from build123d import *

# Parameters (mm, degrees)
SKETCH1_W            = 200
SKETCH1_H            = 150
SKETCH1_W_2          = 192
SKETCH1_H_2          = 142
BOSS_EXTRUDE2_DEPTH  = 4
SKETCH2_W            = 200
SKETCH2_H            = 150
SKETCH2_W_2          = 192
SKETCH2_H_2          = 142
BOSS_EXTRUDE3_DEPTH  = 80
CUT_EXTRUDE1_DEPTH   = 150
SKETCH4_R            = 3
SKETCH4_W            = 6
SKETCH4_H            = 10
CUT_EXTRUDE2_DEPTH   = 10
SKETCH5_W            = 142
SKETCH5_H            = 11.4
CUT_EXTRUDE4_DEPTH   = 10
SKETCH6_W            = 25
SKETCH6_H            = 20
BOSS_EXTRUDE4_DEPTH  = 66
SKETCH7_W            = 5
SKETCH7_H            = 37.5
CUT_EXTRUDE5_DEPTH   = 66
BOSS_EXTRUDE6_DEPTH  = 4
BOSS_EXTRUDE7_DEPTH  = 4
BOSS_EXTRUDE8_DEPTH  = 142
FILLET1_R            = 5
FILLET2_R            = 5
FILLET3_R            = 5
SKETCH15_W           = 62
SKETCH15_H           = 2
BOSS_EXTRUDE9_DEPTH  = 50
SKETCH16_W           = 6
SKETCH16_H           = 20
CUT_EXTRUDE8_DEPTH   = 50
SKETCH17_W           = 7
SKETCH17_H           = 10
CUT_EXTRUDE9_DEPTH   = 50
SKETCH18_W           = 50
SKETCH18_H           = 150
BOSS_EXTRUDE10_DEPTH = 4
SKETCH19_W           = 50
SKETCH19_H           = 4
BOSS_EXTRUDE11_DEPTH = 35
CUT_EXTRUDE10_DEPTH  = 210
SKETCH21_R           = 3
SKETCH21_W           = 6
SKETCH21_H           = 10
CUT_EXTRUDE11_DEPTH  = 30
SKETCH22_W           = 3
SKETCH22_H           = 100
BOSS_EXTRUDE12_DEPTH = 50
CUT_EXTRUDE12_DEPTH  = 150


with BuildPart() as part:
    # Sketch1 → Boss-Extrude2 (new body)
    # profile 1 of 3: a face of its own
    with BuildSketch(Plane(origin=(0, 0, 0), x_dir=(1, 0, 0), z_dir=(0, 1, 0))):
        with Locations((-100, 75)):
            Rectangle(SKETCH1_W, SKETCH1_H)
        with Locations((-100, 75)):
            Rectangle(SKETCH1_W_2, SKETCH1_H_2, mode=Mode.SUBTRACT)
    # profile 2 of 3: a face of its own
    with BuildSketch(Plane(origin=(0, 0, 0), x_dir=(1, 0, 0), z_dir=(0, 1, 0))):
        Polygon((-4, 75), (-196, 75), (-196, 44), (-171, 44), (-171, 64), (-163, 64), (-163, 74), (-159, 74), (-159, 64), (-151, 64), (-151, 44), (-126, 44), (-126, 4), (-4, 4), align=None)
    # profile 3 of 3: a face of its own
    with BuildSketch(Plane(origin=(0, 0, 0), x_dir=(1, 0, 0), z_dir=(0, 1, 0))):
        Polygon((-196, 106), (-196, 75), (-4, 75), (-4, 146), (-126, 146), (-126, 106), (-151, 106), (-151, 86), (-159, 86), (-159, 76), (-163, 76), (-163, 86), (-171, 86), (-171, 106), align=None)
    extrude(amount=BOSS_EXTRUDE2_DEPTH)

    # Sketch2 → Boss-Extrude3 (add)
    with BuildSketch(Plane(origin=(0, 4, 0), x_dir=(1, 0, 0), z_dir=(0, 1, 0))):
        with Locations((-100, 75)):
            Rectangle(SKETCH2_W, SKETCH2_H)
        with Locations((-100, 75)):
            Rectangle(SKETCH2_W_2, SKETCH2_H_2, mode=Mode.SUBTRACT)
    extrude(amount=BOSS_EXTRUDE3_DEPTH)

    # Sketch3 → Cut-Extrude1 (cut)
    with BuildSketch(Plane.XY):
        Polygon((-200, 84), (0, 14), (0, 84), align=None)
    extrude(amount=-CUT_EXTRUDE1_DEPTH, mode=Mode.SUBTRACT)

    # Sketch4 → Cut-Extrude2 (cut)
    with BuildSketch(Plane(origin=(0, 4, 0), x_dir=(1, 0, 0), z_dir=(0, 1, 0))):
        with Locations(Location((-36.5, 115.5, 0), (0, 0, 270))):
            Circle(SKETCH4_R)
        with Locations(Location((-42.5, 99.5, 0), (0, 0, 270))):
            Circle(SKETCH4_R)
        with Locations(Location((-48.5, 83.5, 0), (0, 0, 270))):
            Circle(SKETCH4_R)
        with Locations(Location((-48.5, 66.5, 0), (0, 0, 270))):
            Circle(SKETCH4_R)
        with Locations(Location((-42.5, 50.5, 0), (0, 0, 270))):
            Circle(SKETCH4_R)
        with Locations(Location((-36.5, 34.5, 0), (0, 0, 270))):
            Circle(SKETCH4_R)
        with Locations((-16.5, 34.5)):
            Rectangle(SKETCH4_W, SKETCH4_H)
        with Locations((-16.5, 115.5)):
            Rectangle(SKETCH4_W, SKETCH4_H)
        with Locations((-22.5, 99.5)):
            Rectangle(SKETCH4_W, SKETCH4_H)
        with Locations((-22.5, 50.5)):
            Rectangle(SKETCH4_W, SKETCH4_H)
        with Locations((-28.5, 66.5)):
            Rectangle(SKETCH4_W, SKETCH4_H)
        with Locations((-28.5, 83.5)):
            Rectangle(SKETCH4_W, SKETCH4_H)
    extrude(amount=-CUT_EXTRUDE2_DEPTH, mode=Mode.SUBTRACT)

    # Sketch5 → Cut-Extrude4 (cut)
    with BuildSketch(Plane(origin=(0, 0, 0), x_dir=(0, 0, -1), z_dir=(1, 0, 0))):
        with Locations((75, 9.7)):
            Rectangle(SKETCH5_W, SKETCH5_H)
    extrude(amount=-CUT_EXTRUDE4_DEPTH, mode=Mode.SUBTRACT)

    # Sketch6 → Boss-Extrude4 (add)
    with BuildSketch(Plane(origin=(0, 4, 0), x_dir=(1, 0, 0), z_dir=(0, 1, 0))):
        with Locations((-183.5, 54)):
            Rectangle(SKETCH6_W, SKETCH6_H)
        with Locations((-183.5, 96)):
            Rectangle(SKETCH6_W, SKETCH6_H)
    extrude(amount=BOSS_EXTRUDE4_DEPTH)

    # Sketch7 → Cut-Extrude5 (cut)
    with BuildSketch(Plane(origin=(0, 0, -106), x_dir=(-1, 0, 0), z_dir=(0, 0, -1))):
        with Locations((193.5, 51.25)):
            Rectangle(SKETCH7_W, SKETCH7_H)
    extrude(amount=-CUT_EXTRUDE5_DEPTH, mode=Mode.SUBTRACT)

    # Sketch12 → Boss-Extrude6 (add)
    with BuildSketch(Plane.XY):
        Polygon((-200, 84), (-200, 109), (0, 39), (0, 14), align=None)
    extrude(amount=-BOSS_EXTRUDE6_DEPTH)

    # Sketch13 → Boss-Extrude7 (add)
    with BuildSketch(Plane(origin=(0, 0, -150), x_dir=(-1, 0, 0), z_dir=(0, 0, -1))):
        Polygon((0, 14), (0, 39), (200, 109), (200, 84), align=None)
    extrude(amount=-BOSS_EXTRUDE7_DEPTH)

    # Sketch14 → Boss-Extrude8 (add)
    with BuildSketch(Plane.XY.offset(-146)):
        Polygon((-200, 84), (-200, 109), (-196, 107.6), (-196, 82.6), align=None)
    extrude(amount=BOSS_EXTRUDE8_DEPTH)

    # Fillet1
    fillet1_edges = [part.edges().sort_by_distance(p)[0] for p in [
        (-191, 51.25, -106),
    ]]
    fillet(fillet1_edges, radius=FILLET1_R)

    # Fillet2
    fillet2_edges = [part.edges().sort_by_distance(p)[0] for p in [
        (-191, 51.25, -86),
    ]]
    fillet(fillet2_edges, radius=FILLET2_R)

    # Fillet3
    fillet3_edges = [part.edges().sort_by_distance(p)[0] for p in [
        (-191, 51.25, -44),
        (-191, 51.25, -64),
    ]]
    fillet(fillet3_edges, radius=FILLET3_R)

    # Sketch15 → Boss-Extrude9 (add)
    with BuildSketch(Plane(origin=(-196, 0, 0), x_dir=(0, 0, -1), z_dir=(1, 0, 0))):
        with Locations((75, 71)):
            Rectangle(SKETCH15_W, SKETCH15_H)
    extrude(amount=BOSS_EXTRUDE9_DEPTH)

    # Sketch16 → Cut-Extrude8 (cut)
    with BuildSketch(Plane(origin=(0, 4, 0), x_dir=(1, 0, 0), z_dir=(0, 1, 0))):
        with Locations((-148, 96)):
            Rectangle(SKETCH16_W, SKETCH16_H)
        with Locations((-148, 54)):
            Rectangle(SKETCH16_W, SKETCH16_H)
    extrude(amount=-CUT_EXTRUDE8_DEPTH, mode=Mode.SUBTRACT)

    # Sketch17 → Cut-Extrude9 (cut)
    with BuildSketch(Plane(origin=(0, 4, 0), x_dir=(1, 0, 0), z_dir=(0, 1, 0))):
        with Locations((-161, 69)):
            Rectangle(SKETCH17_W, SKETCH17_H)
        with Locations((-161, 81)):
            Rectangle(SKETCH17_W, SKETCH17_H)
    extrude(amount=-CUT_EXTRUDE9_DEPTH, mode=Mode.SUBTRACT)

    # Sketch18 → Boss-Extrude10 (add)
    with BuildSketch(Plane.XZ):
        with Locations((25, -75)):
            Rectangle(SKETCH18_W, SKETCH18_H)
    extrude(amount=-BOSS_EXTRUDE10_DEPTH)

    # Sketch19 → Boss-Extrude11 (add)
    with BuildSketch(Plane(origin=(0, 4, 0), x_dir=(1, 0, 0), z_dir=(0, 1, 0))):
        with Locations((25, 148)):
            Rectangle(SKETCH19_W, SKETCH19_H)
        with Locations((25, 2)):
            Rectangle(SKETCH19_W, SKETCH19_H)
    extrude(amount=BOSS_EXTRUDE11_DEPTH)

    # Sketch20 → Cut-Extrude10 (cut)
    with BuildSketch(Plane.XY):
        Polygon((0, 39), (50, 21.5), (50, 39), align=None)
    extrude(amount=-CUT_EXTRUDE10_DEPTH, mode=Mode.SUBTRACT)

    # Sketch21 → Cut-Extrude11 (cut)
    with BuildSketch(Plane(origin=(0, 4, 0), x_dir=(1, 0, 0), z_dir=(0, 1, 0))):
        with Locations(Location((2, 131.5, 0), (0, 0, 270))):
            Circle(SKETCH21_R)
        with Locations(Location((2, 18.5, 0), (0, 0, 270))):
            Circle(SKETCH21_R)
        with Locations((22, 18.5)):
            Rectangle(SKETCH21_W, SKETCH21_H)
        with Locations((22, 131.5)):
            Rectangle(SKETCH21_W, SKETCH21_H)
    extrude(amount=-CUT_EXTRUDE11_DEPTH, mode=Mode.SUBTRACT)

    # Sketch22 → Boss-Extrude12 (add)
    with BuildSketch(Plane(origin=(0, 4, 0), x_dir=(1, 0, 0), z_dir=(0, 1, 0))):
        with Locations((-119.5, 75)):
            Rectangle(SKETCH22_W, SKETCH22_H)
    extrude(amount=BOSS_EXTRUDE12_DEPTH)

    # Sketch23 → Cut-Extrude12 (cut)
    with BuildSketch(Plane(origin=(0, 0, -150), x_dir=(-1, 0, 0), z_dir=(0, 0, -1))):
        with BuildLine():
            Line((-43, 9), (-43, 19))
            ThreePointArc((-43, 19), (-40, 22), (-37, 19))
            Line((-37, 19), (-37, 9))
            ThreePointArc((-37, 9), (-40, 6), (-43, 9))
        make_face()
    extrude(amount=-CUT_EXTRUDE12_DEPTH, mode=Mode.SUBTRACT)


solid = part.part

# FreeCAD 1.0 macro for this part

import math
import FreeCAD as App
import Part
import Sketcher

V = App.Vector


def edges_at(feature, points):
    """Names of the edges that pass closest to the given points."""
    edges = feature.Shape.Edges
    near = lambda p: min(range(len(edges)), key=lambda i: edges[i].distToShape(Part.Vertex(*p))[0])
    return sorted({f"Edge{near(p) + 1}" for p in points})

doc = App.newDocument("Part")
body = doc.addObject("PartDesign::Body", "Body")

sketch1 = doc.addObject("Sketcher::SketchObject", "Sketch")
body.addObject(sketch1)
sketch1.AttachmentSupport = (doc.XZ_Plane, [""])
sketch1.MapMode = "FlatFace"
sketch1.addGeometry([
    Part.LineSegment(V(-200, -150, 0), V(-200, 0, 0)),
    Part.LineSegment(V(-200, 0, 0), V(0, 0, 0)),
    Part.LineSegment(V(0, 0, 0), V(0, -150, 0)),
    Part.LineSegment(V(0, -150, 0), V(-200, -150, 0)),
    Part.LineSegment(V(-126, -4, 0), V(-196, -4, 0)),
    Part.LineSegment(V(-196, -4, 0), V(-196, -44, 0)),
    Part.LineSegment(V(-196, -44, 0), V(-171, -44, 0)),
    Part.LineSegment(V(-171, -44, 0), V(-171, -64, 0)),
    Part.LineSegment(V(-171, -64, 0), V(-163, -64, 0)),
    Part.LineSegment(V(-163, -64, 0), V(-163, -74, 0)),
    Part.LineSegment(V(-163, -74, 0), V(-159, -74, 0)),
    Part.LineSegment(V(-159, -74, 0), V(-159, -64, 0)),
    Part.LineSegment(V(-159, -64, 0), V(-151, -64, 0)),
    Part.LineSegment(V(-151, -64, 0), V(-151, -44, 0)),
    Part.LineSegment(V(-151, -44, 0), V(-126, -44, 0)),
    Part.LineSegment(V(-126, -44, 0), V(-126, -4, 0)),
    Part.LineSegment(V(-196, -146, 0), V(-126, -146, 0)),
    Part.LineSegment(V(-126, -146, 0), V(-126, -106, 0)),
    Part.LineSegment(V(-126, -106, 0), V(-151, -106, 0)),
    Part.LineSegment(V(-151, -106, 0), V(-151, -86, 0)),
    Part.LineSegment(V(-151, -86, 0), V(-159, -86, 0)),
    Part.LineSegment(V(-159, -86, 0), V(-159, -76, 0)),
    Part.LineSegment(V(-159, -76, 0), V(-163, -76, 0)),
    Part.LineSegment(V(-163, -76, 0), V(-163, -86, 0)),
    Part.LineSegment(V(-163, -86, 0), V(-171, -86, 0)),
    Part.LineSegment(V(-171, -86, 0), V(-171, -106, 0)),
    Part.LineSegment(V(-171, -106, 0), V(-196, -106, 0)),
    Part.LineSegment(V(-196, -106, 0), V(-196, -146, 0)),
], False)
sketch1.addConstraint([
    Sketcher.Constraint("Coincident", 0, 2, 1, 1),
    Sketcher.Constraint("Coincident", 1, 2, 2, 1),
    Sketcher.Constraint("Coincident", 2, 2, 3, 1),
    Sketcher.Constraint("Coincident", 3, 2, 0, 1),
    Sketcher.Constraint("Coincident", 4, 2, 5, 1),
    Sketcher.Constraint("Coincident", 5, 2, 6, 1),
    Sketcher.Constraint("Coincident", 6, 2, 7, 1),
    Sketcher.Constraint("Coincident", 7, 2, 8, 1),
    Sketcher.Constraint("Coincident", 8, 2, 9, 1),
    Sketcher.Constraint("Coincident", 9, 2, 10, 1),
    Sketcher.Constraint("Coincident", 10, 2, 11, 1),
    Sketcher.Constraint("Coincident", 11, 2, 12, 1),
    Sketcher.Constraint("Coincident", 12, 2, 13, 1),
    Sketcher.Constraint("Coincident", 13, 2, 14, 1),
    Sketcher.Constraint("Coincident", 14, 2, 15, 1),
    Sketcher.Constraint("Coincident", 15, 2, 4, 1),
    Sketcher.Constraint("Coincident", 16, 2, 17, 1),
    Sketcher.Constraint("Coincident", 17, 2, 18, 1),
    Sketcher.Constraint("Coincident", 18, 2, 19, 1),
    Sketcher.Constraint("Coincident", 19, 2, 20, 1),
    Sketcher.Constraint("Coincident", 20, 2, 21, 1),
    Sketcher.Constraint("Coincident", 21, 2, 22, 1),
    Sketcher.Constraint("Coincident", 22, 2, 23, 1),
    Sketcher.Constraint("Coincident", 23, 2, 24, 1),
    Sketcher.Constraint("Coincident", 24, 2, 25, 1),
    Sketcher.Constraint("Coincident", 25, 2, 26, 1),
    Sketcher.Constraint("Coincident", 26, 2, 27, 1),
    Sketcher.Constraint("Coincident", 27, 2, 16, 1),
    Sketcher.Constraint("Vertical", 0),
    Sketcher.Constraint("Horizontal", 1),
    Sketcher.Constraint("Vertical", 2),
    Sketcher.Constraint("Horizontal", 3),
    Sketcher.Constraint("Horizontal", 4),
    Sketcher.Constraint("Vertical", 5),
    Sketcher.Constraint("Horizontal", 6),
    Sketcher.Constraint("Vertical", 7),
    Sketcher.Constraint("Horizontal", 8),
    Sketcher.Constraint("Vertical", 9),
    Sketcher.Constraint("Horizontal", 10),
    Sketcher.Constraint("Vertical", 11),
    Sketcher.Constraint("Horizontal", 12),
    Sketcher.Constraint("Vertical", 13),
    Sketcher.Constraint("Horizontal", 14),
    Sketcher.Constraint("Vertical", 15),
    Sketcher.Constraint("Horizontal", 16),
    Sketcher.Constraint("Vertical", 17),
    Sketcher.Constraint("Horizontal", 18),
    Sketcher.Constraint("Vertical", 19),
    Sketcher.Constraint("Horizontal", 20),
    Sketcher.Constraint("Vertical", 21),
    Sketcher.Constraint("Horizontal", 22),
    Sketcher.Constraint("Vertical", 23),
    Sketcher.Constraint("Horizontal", 24),
    Sketcher.Constraint("Vertical", 25),
    Sketcher.Constraint("Horizontal", 26),
    Sketcher.Constraint("Vertical", 27),
    Sketcher.Constraint("Coincident", 1, 2, -1, 1),
    Sketcher.Constraint("Horizontal", 8, 2, 11, 2),
    Sketcher.Constraint("Horizontal", 6, 2, 13, 2),
    Sketcher.Constraint("Horizontal", 20, 2, 23, 2),
    Sketcher.Constraint("Horizontal", 18, 2, 25, 2),
    Sketcher.Constraint("Vertical", 15, 2, 16, 2),
    Sketcher.Constraint("Vertical", 13, 2, 18, 2),
    Sketcher.Constraint("Vertical", 11, 2, 20, 2),
    Sketcher.Constraint("Vertical", 9, 2, 22, 2),
    Sketcher.Constraint("Vertical", 7, 2, 24, 2),
    Sketcher.Constraint("Vertical", 5, 2, 26, 2),
    Sketcher.Constraint("Equal", 8, 12),
    Sketcher.Constraint("Equal", 6, 14),
    Sketcher.Constraint("Equal", 15, 17),
    Sketcher.Constraint("Equal", 13, 19),
    Sketcher.Constraint("Equal", 11, 21),
    Sketcher.Constraint("DistanceX", 1, 1, 1, 2, 200.0),
    Sketcher.Constraint("DistanceX", 4, 2, 4, 1, 70.0),
    Sketcher.Constraint("DistanceX", 6, 1, 6, 2, 25.0),
    Sketcher.Constraint("DistanceX", 8, 1, 8, 2, 8.0),
    Sketcher.Constraint("DistanceY", 0, 1, 0, 2, 150.0),
    Sketcher.Constraint("DistanceY", 5, 2, 5, 1, 40.0),
    Sketcher.Constraint("DistanceY", 7, 2, 7, 1, 20.0),
    Sketcher.Constraint("DistanceY", 9, 2, 9, 1, 10.0),
    Sketcher.Constraint("DistanceX", 4, 2, -1, 1, 196.0),
    Sketcher.Constraint("DistanceY", 4, 2, -1, 1, 4.0),
    Sketcher.Constraint("DistanceY", 16, 2, -1, 1, 146.0),
])
pad1 = doc.addObject("PartDesign::Pad", "Pad")
body.addObject(pad1)
pad1.Profile = sketch1
pad1.Length = 4
pad1.Reversed = True

sketch2 = doc.addObject("Sketcher::SketchObject", "Sketch001")
body.addObject(sketch2)
sketch2.AttachmentSupport = (doc.XZ_Plane, [""])
sketch2.MapMode = "FlatFace"
sketch2.AttachmentOffset = App.Placement(V(0, 0, -4), App.Rotation())
sketch2.addGeometry([
    Part.LineSegment(V(-200, -150, 0), V(-200, 0, 0)),
    Part.LineSegment(V(-200, 0, 0), V(0, 0, 0)),
    Part.LineSegment(V(0, 0, 0), V(0, -150, 0)),
    Part.LineSegment(V(0, -150, 0), V(-200, -150, 0)),
    Part.LineSegment(V(-4, -4, 0), V(-196, -4, 0)),
    Part.LineSegment(V(-196, -4, 0), V(-196, -146, 0)),
    Part.LineSegment(V(-196, -146, 0), V(-4, -146, 0)),
    Part.LineSegment(V(-4, -146, 0), V(-4, -4, 0)),
], False)
sketch2.addConstraint([
    Sketcher.Constraint("Coincident", 0, 2, 1, 1),
    Sketcher.Constraint("Coincident", 1, 2, 2, 1),
    Sketcher.Constraint("Coincident", 2, 2, 3, 1),
    Sketcher.Constraint("Coincident", 3, 2, 0, 1),
    Sketcher.Constraint("Coincident", 4, 2, 5, 1),
    Sketcher.Constraint("Coincident", 5, 2, 6, 1),
    Sketcher.Constraint("Coincident", 6, 2, 7, 1),
    Sketcher.Constraint("Coincident", 7, 2, 4, 1),
    Sketcher.Constraint("Vertical", 0),
    Sketcher.Constraint("Horizontal", 1),
    Sketcher.Constraint("Vertical", 2),
    Sketcher.Constraint("Horizontal", 3),
    Sketcher.Constraint("Horizontal", 4),
    Sketcher.Constraint("Vertical", 5),
    Sketcher.Constraint("Horizontal", 6),
    Sketcher.Constraint("Vertical", 7),
    Sketcher.Constraint("Coincident", 1, 2, -1, 1),
    Sketcher.Constraint("DistanceX", 1, 1, 1, 2, 200.0),
    Sketcher.Constraint("DistanceX", 4, 2, 4, 1, 192.0),
    Sketcher.Constraint("DistanceY", 0, 1, 0, 2, 150.0),
    Sketcher.Constraint("DistanceY", 5, 2, 5, 1, 142.0),
    Sketcher.Constraint("DistanceX", 4, 2, -1, 1, 196.0),
    Sketcher.Constraint("DistanceY", 4, 2, -1, 1, 4.0),
])
pad2 = doc.addObject("PartDesign::Pad", "Pad001")
body.addObject(pad2)
pad2.Profile = sketch2
pad2.Length = 80
pad2.Reversed = True

sketch3 = doc.addObject("Sketcher::SketchObject", "Sketch002")
body.addObject(sketch3)
sketch3.AttachmentSupport = (doc.XY_Plane, [""])
sketch3.MapMode = "FlatFace"
sketch3.addGeometry([
    Part.LineSegment(V(-200, 84, 0), V(0, 14, 0)),
    Part.LineSegment(V(0, 14, 0), V(0, 84, 0)),
    Part.LineSegment(V(0, 84, 0), V(-200, 84, 0)),
], False)
sketch3.addConstraint([
    Sketcher.Constraint("Coincident", 0, 2, 1, 1),
    Sketcher.Constraint("Coincident", 1, 2, 2, 1),
    Sketcher.Constraint("Coincident", 2, 2, 0, 1),
    Sketcher.Constraint("Vertical", 1),
    Sketcher.Constraint("Horizontal", 2),
    Sketcher.Constraint("PointOnObject", 0, 2, -2),
    Sketcher.Constraint("DistanceX", 2, 2, 2, 1, 200.0),
    Sketcher.Constraint("DistanceY", 1, 1, 1, 2, 70.0),
    Sketcher.Constraint("DistanceY", -1, 1, 0, 2, 14.0),
])
pocket1 = doc.addObject("PartDesign::Pocket", "Pocket")
body.addObject(pocket1)
pocket1.Profile = sketch3
pocket1.Length = 150

sketch4 = doc.addObject("Sketcher::SketchObject", "Sketch003")
body.addObject(sketch4)
sketch4.AttachmentSupport = (doc.XZ_Plane, [""])
sketch4.MapMode = "FlatFace"
sketch4.AttachmentOffset = App.Placement(V(0, 0, -4), App.Rotation())
sketch4.addGeometry([
    Part.Circle(V(-36.5, -115.5, 0), V(0, 0, 1), 3),
    Part.Circle(V(-42.5, -99.5, 0), V(0, 0, 1), 3),
    Part.Circle(V(-48.5, -83.5, 0), V(0, 0, 1), 3),
    Part.Circle(V(-48.5, -66.5, 0), V(0, 0, 1), 3),
    Part.Circle(V(-42.5, -50.5, 0), V(0, 0, 1), 3),
    Part.Circle(V(-36.5, -34.5, 0), V(0, 0, 1), 3),
    Part.LineSegment(V(-19.5, -39.5, 0), V(-19.5, -29.5, 0)),
    Part.LineSegment(V(-19.5, -29.5, 0), V(-13.5, -29.5, 0)),
    Part.LineSegment(V(-13.5, -29.5, 0), V(-13.5, -39.5, 0)),
    Part.LineSegment(V(-13.5, -39.5, 0), V(-19.5, -39.5, 0)),
    Part.LineSegment(V(-19.5, -120.5, 0), V(-19.5, -110.5, 0)),
    Part.LineSegment(V(-19.5, -110.5, 0), V(-13.5, -110.5, 0)),
    Part.LineSegment(V(-13.5, -110.5, 0), V(-13.5, -120.5, 0)),
    Part.LineSegment(V(-13.5, -120.5, 0), V(-19.5, -120.5, 0)),
    Part.LineSegment(V(-25.5, -104.5, 0), V(-25.5, -94.5, 0)),
    Part.LineSegment(V(-25.5, -94.5, 0), V(-19.5, -94.5, 0)),
    Part.LineSegment(V(-19.5, -94.5, 0), V(-19.5, -104.5, 0)),
    Part.LineSegment(V(-19.5, -104.5, 0), V(-25.5, -104.5, 0)),
    Part.LineSegment(V(-25.5, -55.5, 0), V(-25.5, -45.5, 0)),
    Part.LineSegment(V(-25.5, -45.5, 0), V(-19.5, -45.5, 0)),
    Part.LineSegment(V(-19.5, -45.5, 0), V(-19.5, -55.5, 0)),
    Part.LineSegment(V(-19.5, -55.5, 0), V(-25.5, -55.5, 0)),
    Part.LineSegment(V(-31.5, -71.5, 0), V(-31.5, -61.5, 0)),
    Part.LineSegment(V(-31.5, -61.5, 0), V(-25.5, -61.5, 0)),
    Part.LineSegment(V(-25.5, -61.5, 0), V(-25.5, -71.5, 0)),
    Part.LineSegment(V(-25.5, -71.5, 0), V(-31.5, -71.5, 0)),
    Part.LineSegment(V(-31.5, -88.5, 0), V(-31.5, -78.5, 0)),
    Part.LineSegment(V(-31.5, -78.5, 0), V(-25.5, -78.5, 0)),
    Part.LineSegment(V(-25.5, -78.5, 0), V(-25.5, -88.5, 0)),
    Part.LineSegment(V(-25.5, -88.5, 0), V(-31.5, -88.5, 0)),
], False)
sketch4.addConstraint([
    Sketcher.Constraint("Coincident", 6, 2, 7, 1),
    Sketcher.Constraint("Coincident", 7, 2, 8, 1),
    Sketcher.Constraint("Coincident", 8, 2, 9, 1),
    Sketcher.Constraint("Coincident", 9, 2, 6, 1),
    Sketcher.Constraint("Coincident", 10, 2, 11, 1),
    Sketcher.Constraint("Coincident", 11, 2, 12, 1),
    Sketcher.Constraint("Coincident", 12, 2, 13, 1),
    Sketcher.Constraint("Coincident", 13, 2, 10, 1),
    Sketcher.Constraint("Coincident", 14, 2, 15, 1),
    Sketcher.Constraint("Coincident", 15, 2, 16, 1),
    Sketcher.Constraint("Coincident", 16, 2, 17, 1),
    Sketcher.Constraint("Coincident", 17, 2, 14, 1),
    Sketcher.Constraint("Coincident", 18, 2, 19, 1),
    Sketcher.Constraint("Coincident", 19, 2, 20, 1),
    Sketcher.Constraint("Coincident", 20, 2, 21, 1),
    Sketcher.Constraint("Coincident", 21, 2, 18, 1),
    Sketcher.Constraint("Coincident", 22, 2, 23, 1),
    Sketcher.Constraint("Coincident", 23, 2, 24, 1),
    Sketcher.Constraint("Coincident", 24, 2, 25, 1),
    Sketcher.Constraint("Coincident", 25, 2, 22, 1),
    Sketcher.Constraint("Coincident", 26, 2, 27, 1),
    Sketcher.Constraint("Coincident", 27, 2, 28, 1),
    Sketcher.Constraint("Coincident", 28, 2, 29, 1),
    Sketcher.Constraint("Coincident", 29, 2, 26, 1),
    Sketcher.Constraint("Vertical", 6),
    Sketcher.Constraint("Horizontal", 7),
    Sketcher.Constraint("Vertical", 8),
    Sketcher.Constraint("Horizontal", 9),
    Sketcher.Constraint("Vertical", 10),
    Sketcher.Constraint("Horizontal", 11),
    Sketcher.Constraint("Vertical", 12),
    Sketcher.Constraint("Horizontal", 13),
    Sketcher.Constraint("Vertical", 14),
    Sketcher.Constraint("Horizontal", 15),
    Sketcher.Constraint("Vertical", 16),
    Sketcher.Constraint("Horizontal", 17),
    Sketcher.Constraint("Vertical", 18),
    Sketcher.Constraint("Horizontal", 19),
    Sketcher.Constraint("Vertical", 20),
    Sketcher.Constraint("Horizontal", 21),
    Sketcher.Constraint("Vertical", 22),
    Sketcher.Constraint("Horizontal", 23),
    Sketcher.Constraint("Vertical", 24),
    Sketcher.Constraint("Horizontal", 25),
    Sketcher.Constraint("Vertical", 26),
    Sketcher.Constraint("Horizontal", 27),
    Sketcher.Constraint("Vertical", 28),
    Sketcher.Constraint("Horizontal", 29),
    Sketcher.Constraint("Equal", 0, 1),
    Sketcher.Constraint("Equal", 1, 2),
    Sketcher.Constraint("Equal", 2, 3),
    Sketcher.Constraint("Equal", 3, 4),
    Sketcher.Constraint("Equal", 4, 5),
    Sketcher.Constraint("Vertical", 2, 3, 3, 3),
    Sketcher.Constraint("Vertical", 1, 3, 4, 3),
    Sketcher.Constraint("Vertical", 0, 3, 5, 3),
    Sketcher.Constraint("Vertical", 9, 2, 10, 2),
    Sketcher.Constraint("Vertical", 8, 2, 11, 2),
    Sketcher.Constraint("Vertical", 13, 2, 15, 2),
    Sketcher.Constraint("Vertical", 17, 2, 18, 2),
    Sketcher.Constraint("Vertical", 16, 2, 19, 2),
    Sketcher.Constraint("Vertical", 21, 2, 23, 2),
    Sketcher.Constraint("Vertical", 25, 2, 26, 2),
    Sketcher.Constraint("Vertical", 24, 2, 27, 2),
    Sketcher.Constraint("Equal", 13, 15),
    Sketcher.Constraint("Equal", 21, 23),
    Sketcher.Constraint("Equal", 8, 10),
    Sketcher.Constraint("Equal", 12, 14),
    Sketcher.Constraint("Equal", 16, 18),
    Sketcher.Constraint("Equal", 20, 22),
    Sketcher.Constraint("Equal", 24, 26),
    Sketcher.Constraint("Diameter", 0, 6.0),
    Sketcher.Constraint("DistanceX", 7, 1, 7, 2, 6.0),
    Sketcher.Constraint("DistanceY", 6, 1, 6, 2, 10.0),
    Sketcher.Constraint("DistanceX", 1, 3, 0, 3, 6.0),
    Sketcher.Constraint("DistanceY", 0, 3, 1, 3, 16.0),
    Sketcher.Constraint("DistanceX", 2, 3, 1, 3, 6.0),
    Sketcher.Constraint("DistanceY", 1, 3, 2, 3, 16.0),
    Sketcher.Constraint("DistanceY", 2, 3, 3, 3, 17.0),
    Sketcher.Constraint("DistanceY", 3, 3, 4, 3, 16.0),
    Sketcher.Constraint("DistanceY", 4, 3, 5, 3, 16.0),
    Sketcher.Constraint("DistanceX", 5, 3, 6, 2, 17.0),
    Sketcher.Constraint("DistanceY", 5, 3, 6, 2, 5.0),
    Sketcher.Constraint("DistanceY", 0, 3, 10, 2, 5.0),
    Sketcher.Constraint("DistanceY", 10, 2, 14, 2, 16.0),
    Sketcher.Constraint("DistanceY", 18, 2, 9, 2, 6.0),
    Sketcher.Constraint("DistanceY", 22, 2, 21, 2, 6.0),
    Sketcher.Constraint("DistanceY", 26, 2, 25, 2, 7.0),
    Sketcher.Constraint("DistanceX", 0, 3, -1, 1, 36.5),
    Sketcher.Constraint("DistanceY", 0, 3, -1, 1, 115.5),
])
pocket2 = doc.addObject("PartDesign::Pocket", "Pocket001")
body.addObject(pocket2)
pocket2.Profile = sketch4
pocket2.Length = 10
pocket2.Reversed = True

sketch5 = doc.addObject("Sketcher::SketchObject", "Sketch004")
body.addObject(sketch5)
sketch5.AttachmentSupport = (doc.YZ_Plane, [""])
sketch5.MapMode = "FlatFace"
sketch5.addGeometry([
    Part.LineSegment(V(15.4, -4, 0), V(4, -4, 0)),
    Part.LineSegment(V(4, -4, 0), V(4, -146, 0)),
    Part.LineSegment(V(4, -146, 0), V(15.4, -146, 0)),
    Part.LineSegment(V(15.4, -146, 0), V(15.4, -4, 0)),
], False)
sketch5.addConstraint([
    Sketcher.Constraint("Coincident", 0, 2, 1, 1),
    Sketcher.Constraint("Coincident", 1, 2, 2, 1),
    Sketcher.Constraint("Coincident", 2, 2, 3, 1),
    Sketcher.Constraint("Coincident", 3, 2, 0, 1),
    Sketcher.Constraint("Horizontal", 0),
    Sketcher.Constraint("Vertical", 1),
    Sketcher.Constraint("Horizontal", 2),
    Sketcher.Constraint("Vertical", 3),
    Sketcher.Constraint("DistanceY", 1, 2, 1, 1, 142.0),
    Sketcher.Constraint("DistanceX", 0, 2, 0, 1, 11.4),
    Sketcher.Constraint("DistanceX", -1, 1, 0, 2, 4.0),
    Sketcher.Constraint("DistanceY", 0, 2, -1, 1, 4.0),
])
pocket3 = doc.addObject("PartDesign::Pocket", "Pocket002")
body.addObject(pocket3)
pocket3.Profile = sketch5
pocket3.Length = 10

sketch6 = doc.addObject("Sketcher::SketchObject", "Sketch005")
body.addObject(sketch6)
sketch6.AttachmentSupport = (doc.XZ_Plane, [""])
sketch6.MapMode = "FlatFace"
sketch6.AttachmentOffset = App.Placement(V(0, 0, -4), App.Rotation())
sketch6.addGeometry([
    Part.LineSegment(V(-196, -64, 0), V(-196, -44, 0)),
    Part.LineSegment(V(-196, -44, 0), V(-171, -44, 0)),
    Part.LineSegment(V(-171, -44, 0), V(-171, -64, 0)),
    Part.LineSegment(V(-171, -64, 0), V(-196, -64, 0)),
    Part.LineSegment(V(-196, -106, 0), V(-196, -86, 0)),
    Part.LineSegment(V(-196, -86, 0), V(-171, -86, 0)),
    Part.LineSegment(V(-171, -86, 0), V(-171, -106, 0)),
    Part.LineSegment(V(-171, -106, 0), V(-196, -106, 0)),
], False)
sketch6.addConstraint([
    Sketcher.Constraint("Coincident", 0, 2, 1, 1),
    Sketcher.Constraint("Coincident", 1, 2, 2, 1),
    Sketcher.Constraint("Coincident", 2, 2, 3, 1),
    Sketcher.Constraint("Coincident", 3, 2, 0, 1),
    Sketcher.Constraint("Coincident", 4, 2, 5, 1),
    Sketcher.Constraint("Coincident", 5, 2, 6, 1),
    Sketcher.Constraint("Coincident", 6, 2, 7, 1),
    Sketcher.Constraint("Coincident", 7, 2, 4, 1),
    Sketcher.Constraint("Vertical", 0),
    Sketcher.Constraint("Horizontal", 1),
    Sketcher.Constraint("Vertical", 2),
    Sketcher.Constraint("Horizontal", 3),
    Sketcher.Constraint("Vertical", 4),
    Sketcher.Constraint("Horizontal", 5),
    Sketcher.Constraint("Vertical", 6),
    Sketcher.Constraint("Horizontal", 7),
    Sketcher.Constraint("Vertical", 3, 2, 4, 2),
    Sketcher.Constraint("Vertical", 2, 2, 5, 2),
    Sketcher.Constraint("Equal", 2, 4),
    Sketcher.Constraint("DistanceX", 1, 1, 1, 2, 25.0),
    Sketcher.Constraint("DistanceY", 0, 1, 0, 2, 20.0),
    Sketcher.Constraint("DistanceX", 0, 2, -1, 1, 196.0),
    Sketcher.Constraint("DistanceY", 0, 2, -1, 1, 44.0),
    Sketcher.Constraint("DistanceY", 4, 2, -1, 1, 86.0),
])
pad3 = doc.addObject("PartDesign::Pad", "Pad002")
body.addObject(pad3)
pad3.Profile = sketch6
pad3.Length = 66
pad3.Reversed = True

sketch7 = doc.addObject("Sketcher::SketchObject", "Sketch006")
body.addObject(sketch7)
sketch7.AttachmentSupport = (doc.XY_Plane, [""])
sketch7.MapMode = "FlatFace"
sketch7.AttachmentOffset = App.Placement(V(0, 0, -106), App.Rotation())
sketch7.addGeometry([
    Part.LineSegment(V(-191, 70, 0), V(-191, 32.5, 0)),
    Part.LineSegment(V(-191, 32.5, 0), V(-196, 32.5, 0)),
    Part.LineSegment(V(-196, 32.5, 0), V(-196, 70, 0)),
    Part.LineSegment(V(-196, 70, 0), V(-191, 70, 0)),
], False)
sketch7.addConstraint([
    Sketcher.Constraint("Coincident", 0, 2, 1, 1),
    Sketcher.Constraint("Coincident", 1, 2, 2, 1),
    Sketcher.Constraint("Coincident", 2, 2, 3, 1),
    Sketcher.Constraint("Coincident", 3, 2, 0, 1),
    Sketcher.Constraint("Vertical", 0),
    Sketcher.Constraint("Horizontal", 1),
    Sketcher.Constraint("Vertical", 2),
    Sketcher.Constraint("Horizontal", 3),
    Sketcher.Constraint("DistanceX", 1, 2, 1, 1, 5.0),
    Sketcher.Constraint("DistanceY", 0, 2, 0, 1, 37.5),
    Sketcher.Constraint("DistanceX", 0, 2, -1, 1, 191.0),
    Sketcher.Constraint("DistanceY", -1, 1, 2, 2, 70.0),
])
pocket4 = doc.addObject("PartDesign::Pocket", "Pocket003")
body.addObject(pocket4)
pocket4.Profile = sketch7
pocket4.Length = 66
pocket4.Reversed = True

sketch8 = doc.addObject("Sketcher::SketchObject", "Sketch007")
body.addObject(sketch8)
sketch8.AttachmentSupport = (doc.XY_Plane, [""])
sketch8.MapMode = "FlatFace"
sketch8.addGeometry([
    Part.LineSegment(V(-200, 109, 0), V(-200, 84, 0)),
    Part.LineSegment(V(-200, 84, 0), V(0, 14, 0)),
    Part.LineSegment(V(0, 14, 0), V(0, 39, 0)),
    Part.LineSegment(V(0, 39, 0), V(-200, 109, 0)),
], False)
sketch8.addConstraint([
    Sketcher.Constraint("Coincident", 0, 2, 1, 1),
    Sketcher.Constraint("Coincident", 1, 2, 2, 1),
    Sketcher.Constraint("Coincident", 2, 2, 3, 1),
    Sketcher.Constraint("Coincident", 3, 2, 0, 1),
    Sketcher.Constraint("Vertical", 0),
    Sketcher.Constraint("Vertical", 2),
    Sketcher.Constraint("PointOnObject", 1, 2, -2),
    Sketcher.Constraint("Parallel", 1, 3),
    Sketcher.Constraint("DistanceY", 0, 2, 0, 1, 25.0),
    Sketcher.Constraint("DistanceX", 0, 2, -1, 1, 200.0),
    Sketcher.Constraint("DistanceY", -1, 1, 0, 2, 84.0),
    Sketcher.Constraint("DistanceY", -1, 1, 1, 2, 14.0),
])
pad4 = doc.addObject("PartDesign::Pad", "Pad003")
body.addObject(pad4)
pad4.Profile = sketch8
pad4.Length = 4
pad4.Reversed = True

sketch9 = doc.addObject("Sketcher::SketchObject", "Sketch008")
body.addObject(sketch9)
sketch9.AttachmentSupport = (doc.XY_Plane, [""])
sketch9.MapMode = "FlatFace"
sketch9.AttachmentOffset = App.Placement(V(0, 0, -150), App.Rotation())
sketch9.addGeometry([
    Part.LineSegment(V(0, 39, 0), V(0, 14, 0)),
    Part.LineSegment(V(0, 14, 0), V(-200, 84, 0)),
    Part.LineSegment(V(-200, 84, 0), V(-200, 109, 0)),
    Part.LineSegment(V(-200, 109, 0), V(0, 39, 0)),
], False)
sketch9.addConstraint([
    Sketcher.Constraint("Coincident", 0, 2, 1, 1),
    Sketcher.Constraint("Coincident", 1, 2, 2, 1),
    Sketcher.Constraint("Coincident", 2, 2, 3, 1),
    Sketcher.Constraint("Coincident", 3, 2, 0, 1),
    Sketcher.Constraint("Vertical", 0),
    Sketcher.Constraint("Vertical", 2),
    Sketcher.Constraint("PointOnObject", 0, 2, -2),
    Sketcher.Constraint("Parallel", 1, 3),
    Sketcher.Constraint("DistanceY", 0, 2, 0, 1, 25.0),
    Sketcher.Constraint("DistanceY", -1, 1, 0, 2, 14.0),
    Sketcher.Constraint("DistanceX", 1, 2, -1, 1, 200.0),
    Sketcher.Constraint("DistanceY", -1, 1, 1, 2, 84.0),
])
pad5 = doc.addObject("PartDesign::Pad", "Pad004")
body.addObject(pad5)
pad5.Profile = sketch9
pad5.Length = 4

sketch10 = doc.addObject("Sketcher::SketchObject", "Sketch009")
body.addObject(sketch10)
sketch10.AttachmentSupport = (doc.XY_Plane, [""])
sketch10.MapMode = "FlatFace"
sketch10.AttachmentOffset = App.Placement(V(0, 0, -146), App.Rotation())
sketch10.addGeometry([
    Part.LineSegment(V(-200, 109, 0), V(-200, 84, 0)),
    Part.LineSegment(V(-200, 84, 0), V(-196, 82.6, 0)),
    Part.LineSegment(V(-196, 82.6, 0), V(-196, 107.6, 0)),
    Part.LineSegment(V(-196, 107.6, 0), V(-200, 109, 0)),
], False)
sketch10.addConstraint([
    Sketcher.Constraint("Coincident", 0, 2, 1, 1),
    Sketcher.Constraint("Coincident", 1, 2, 2, 1),
    Sketcher.Constraint("Coincident", 2, 2, 3, 1),
    Sketcher.Constraint("Coincident", 3, 2, 0, 1),
    Sketcher.Constraint("Vertical", 0),
    Sketcher.Constraint("Vertical", 2),
    Sketcher.Constraint("Parallel", 1, 3),
    Sketcher.Constraint("DistanceY", 0, 2, 0, 1, 25.0),
    Sketcher.Constraint("DistanceX", 0, 2, -1, 1, 200.0),
    Sketcher.Constraint("DistanceY", -1, 1, 0, 2, 84.0),
    Sketcher.Constraint("DistanceX", 1, 2, -1, 1, 196.0),
    Sketcher.Constraint("DistanceY", -1, 1, 1, 2, 82.6),
])
pad6 = doc.addObject("PartDesign::Pad", "Pad005")
body.addObject(pad6)
pad6.Profile = sketch10
pad6.Length = 142
doc.recompute()

fillet = doc.addObject("PartDesign::Fillet", "Fillet")
body.addObject(fillet)
fillet.Base = (pad6, edges_at(pad6, [(-191, 51.25, -106)]))
fillet.Radius = 5
doc.recompute()

fillet2 = doc.addObject("PartDesign::Fillet", "Fillet001")
body.addObject(fillet2)
fillet2.Base = (fillet, edges_at(fillet, [(-191, 51.25, -86)]))
fillet2.Radius = 5
doc.recompute()

fillet3 = doc.addObject("PartDesign::Fillet", "Fillet002")
body.addObject(fillet3)
fillet3.Base = (fillet2, edges_at(fillet2, [(-191, 51.25, -44), (-191, 51.25, -64)]))
fillet3.Radius = 5

sketch11 = doc.addObject("Sketcher::SketchObject", "Sketch010")
body.addObject(sketch11)
sketch11.AttachmentSupport = (doc.YZ_Plane, [""])
sketch11.MapMode = "FlatFace"
sketch11.AttachmentOffset = App.Placement(V(0, 0, -196), App.Rotation())
sketch11.addGeometry([
    Part.LineSegment(V(72, -44, 0), V(70, -44, 0)),
    Part.LineSegment(V(70, -44, 0), V(70, -106, 0)),
    Part.LineSegment(V(70, -106, 0), V(72, -106, 0)),
    Part.LineSegment(V(72, -106, 0), V(72, -44, 0)),
], False)
sketch11.addConstraint([
    Sketcher.Constraint("Coincident", 0, 2, 1, 1),
    Sketcher.Constraint("Coincident", 1, 2, 2, 1),
    Sketcher.Constraint("Coincident", 2, 2, 3, 1),
    Sketcher.Constraint("Coincident", 3, 2, 0, 1),
    Sketcher.Constraint("Horizontal", 0),
    Sketcher.Constraint("Vertical", 1),
    Sketcher.Constraint("Horizontal", 2),
    Sketcher.Constraint("Vertical", 3),
    Sketcher.Constraint("DistanceX", 0, 2, 0, 1, 2.0),
    Sketcher.Constraint("DistanceY", 1, 2, 1, 1, 62.0),
    Sketcher.Constraint("DistanceX", -1, 1, 0, 2, 70.0),
    Sketcher.Constraint("DistanceY", 0, 2, -1, 1, 44.0),
])
pad7 = doc.addObject("PartDesign::Pad", "Pad006")
body.addObject(pad7)
pad7.Profile = sketch11
pad7.Length = 50

sketch12 = doc.addObject("Sketcher::SketchObject", "Sketch011")
body.addObject(sketch12)
sketch12.AttachmentSupport = (doc.XZ_Plane, [""])
sketch12.MapMode = "FlatFace"
sketch12.AttachmentOffset = App.Placement(V(0, 0, -4), App.Rotation())
sketch12.addGeometry([
    Part.LineSegment(V(-151, -106, 0), V(-151, -86, 0)),
    Part.LineSegment(V(-151, -86, 0), V(-145, -86, 0)),
    Part.LineSegment(V(-145, -86, 0), V(-145, -106, 0)),
    Part.LineSegment(V(-145, -106, 0), V(-151, -106, 0)),
    Part.LineSegment(V(-151, -64, 0), V(-151, -44, 0)),
    Part.LineSegment(V(-151, -44, 0), V(-145, -44, 0)),
    Part.LineSegment(V(-145, -44, 0), V(-145, -64, 0)),
    Part.LineSegment(V(-145, -64, 0), V(-151, -64, 0)),
], False)
sketch12.addConstraint([
    Sketcher.Constraint("Coincident", 0, 2, 1, 1),
    Sketcher.Constraint("Coincident", 1, 2, 2, 1),
    Sketcher.Constraint("Coincident", 2, 2, 3, 1),
    Sketcher.Constraint("Coincident", 3, 2, 0, 1),
    Sketcher.Constraint("Coincident", 4, 2, 5, 1),
    Sketcher.Constraint("Coincident", 5, 2, 6, 1),
    Sketcher.Constraint("Coincident", 6, 2, 7, 1),
    Sketcher.Constraint("Coincident", 7, 2, 4, 1),
    Sketcher.Constraint("Vertical", 0),
    Sketcher.Constraint("Horizontal", 1),
    Sketcher.Constraint("Vertical", 2),
    Sketcher.Constraint("Horizontal", 3),
    Sketcher.Constraint("Vertical", 4),
    Sketcher.Constraint("Horizontal", 5),
    Sketcher.Constraint("Vertical", 6),
    Sketcher.Constraint("Horizontal", 7),
    Sketcher.Constraint("Vertical", 3, 2, 4, 2),
    Sketcher.Constraint("Vertical", 2, 2, 5, 2),
    Sketcher.Constraint("Equal", 2, 4),
    Sketcher.Constraint("DistanceX", 1, 1, 1, 2, 6.0),
    Sketcher.Constraint("DistanceY", 0, 1, 0, 2, 20.0),
    Sketcher.Constraint("DistanceX", 0, 2, -1, 1, 151.0),
    Sketcher.Constraint("DistanceY", 0, 2, -1, 1, 86.0),
    Sketcher.Constraint("DistanceY", 4, 2, -1, 1, 44.0),
])
pocket5 = doc.addObject("PartDesign::Pocket", "Pocket004")
body.addObject(pocket5)
pocket5.Profile = sketch12
pocket5.Length = 50
pocket5.Reversed = True

sketch13 = doc.addObject("Sketcher::SketchObject", "Sketch012")
body.addObject(sketch13)
sketch13.AttachmentSupport = (doc.XZ_Plane, [""])
sketch13.MapMode = "FlatFace"
sketch13.AttachmentOffset = App.Placement(V(0, 0, -4), App.Rotation())
sketch13.addGeometry([
    Part.LineSegment(V(-164.5, -74, 0), V(-164.5, -64, 0)),
    Part.LineSegment(V(-164.5, -64, 0), V(-157.5, -64, 0)),
    Part.LineSegment(V(-157.5, -64, 0), V(-157.5, -74, 0)),
    Part.LineSegment(V(-157.5, -74, 0), V(-164.5, -74, 0)),
    Part.LineSegment(V(-164.5, -86, 0), V(-164.5, -76, 0)),
    Part.LineSegment(V(-164.5, -76, 0), V(-157.5, -76, 0)),
    Part.LineSegment(V(-157.5, -76, 0), V(-157.5, -86, 0)),
    Part.LineSegment(V(-157.5, -86, 0), V(-164.5, -86, 0)),
], False)
sketch13.addConstraint([
    Sketcher.Constraint("Coincident", 0, 2, 1, 1),
    Sketcher.Constraint("Coincident", 1, 2, 2, 1),
    Sketcher.Constraint("Coincident", 2, 2, 3, 1),
    Sketcher.Constraint("Coincident", 3, 2, 0, 1),
    Sketcher.Constraint("Coincident", 4, 2, 5, 1),
    Sketcher.Constraint("Coincident", 5, 2, 6, 1),
    Sketcher.Constraint("Coincident", 6, 2, 7, 1),
    Sketcher.Constraint("Coincident", 7, 2, 4, 1),
    Sketcher.Constraint("Vertical", 0),
    Sketcher.Constraint("Horizontal", 1),
    Sketcher.Constraint("Vertical", 2),
    Sketcher.Constraint("Horizontal", 3),
    Sketcher.Constraint("Vertical", 4),
    Sketcher.Constraint("Horizontal", 5),
    Sketcher.Constraint("Vertical", 6),
    Sketcher.Constraint("Horizontal", 7),
    Sketcher.Constraint("Vertical", 3, 2, 4, 2),
    Sketcher.Constraint("Vertical", 2, 2, 5, 2),
    Sketcher.Constraint("Equal", 2, 4),
    Sketcher.Constraint("DistanceX", 1, 1, 1, 2, 7.0),
    Sketcher.Constraint("DistanceY", 0, 1, 0, 2, 10.0),
    Sketcher.Constraint("DistanceY", 0, 2, -1, 1, 64.0),
    Sketcher.Constraint("DistanceY", 4, 2, -1, 1, 76.0),
    Sketcher.Constraint("DistanceX", 0, 2, -1, 1, 164.5),
])
pocket6 = doc.addObject("PartDesign::Pocket", "Pocket005")
body.addObject(pocket6)
pocket6.Profile = sketch13
pocket6.Length = 50
pocket6.Reversed = True

sketch14 = doc.addObject("Sketcher::SketchObject", "Sketch013")
body.addObject(sketch14)
sketch14.AttachmentSupport = (doc.XZ_Plane, [""])
sketch14.MapMode = "FlatFace"
sketch14.addGeometry([
    Part.LineSegment(V(0, 0, 0), V(0, -150, 0)),
    Part.LineSegment(V(0, -150, 0), V(50, -150, 0)),
    Part.LineSegment(V(50, -150, 0), V(50, 0, 0)),
    Part.LineSegment(V(50, 0, 0), V(0, 0, 0)),
], False)
sketch14.addConstraint([
    Sketcher.Constraint("Coincident", 0, 2, 1, 1),
    Sketcher.Constraint("Coincident", 1, 2, 2, 1),
    Sketcher.Constraint("Coincident", 2, 2, 3, 1),
    Sketcher.Constraint("Coincident", 3, 2, 0, 1),
    Sketcher.Constraint("Vertical", 0),
    Sketcher.Constraint("Horizontal", 1),
    Sketcher.Constraint("Vertical", 2),
    Sketcher.Constraint("Horizontal", 3),
    Sketcher.Constraint("Coincident", 3, 2, -1, 1),
    Sketcher.Constraint("DistanceX", 1, 1, 1, 2, 50.0),
    Sketcher.Constraint("DistanceY", 0, 2, 0, 1, 150.0),
])
pad8 = doc.addObject("PartDesign::Pad", "Pad007")
body.addObject(pad8)
pad8.Profile = sketch14
pad8.Length = 4
pad8.Reversed = True

sketch15 = doc.addObject("Sketcher::SketchObject", "Sketch014")
body.addObject(sketch15)
sketch15.AttachmentSupport = (doc.XZ_Plane, [""])
sketch15.MapMode = "FlatFace"
sketch15.AttachmentOffset = App.Placement(V(0, 0, -4), App.Rotation())
sketch15.addGeometry([
    Part.LineSegment(V(0, -150, 0), V(0, -146, 0)),
    Part.LineSegment(V(0, -146, 0), V(50, -146, 0)),
    Part.LineSegment(V(50, -146, 0), V(50, -150, 0)),
    Part.LineSegment(V(50, -150, 0), V(0, -150, 0)),
    Part.LineSegment(V(0, -4, 0), V(0, 0, 0)),
    Part.LineSegment(V(0, 0, 0), V(50, 0, 0)),
    Part.LineSegment(V(50, 0, 0), V(50, -4, 0)),
    Part.LineSegment(V(50, -4, 0), V(0, -4, 0)),
], False)
sketch15.addConstraint([
    Sketcher.Constraint("Coincident", 0, 2, 1, 1),
    Sketcher.Constraint("Coincident", 1, 2, 2, 1),
    Sketcher.Constraint("Coincident", 2, 2, 3, 1),
    Sketcher.Constraint("Coincident", 3, 2, 0, 1),
    Sketcher.Constraint("Coincident", 4, 2, 5, 1),
    Sketcher.Constraint("Coincident", 5, 2, 6, 1),
    Sketcher.Constraint("Coincident", 6, 2, 7, 1),
    Sketcher.Constraint("Coincident", 7, 2, 4, 1),
    Sketcher.Constraint("Vertical", 0),
    Sketcher.Constraint("Horizontal", 1),
    Sketcher.Constraint("Vertical", 2),
    Sketcher.Constraint("Horizontal", 3),
    Sketcher.Constraint("Vertical", 4),
    Sketcher.Constraint("Horizontal", 5),
    Sketcher.Constraint("Vertical", 6),
    Sketcher.Constraint("Horizontal", 7),
    Sketcher.Constraint("Coincident", 4, 2, -1, 1),
    Sketcher.Constraint("PointOnObject", 0, 2, -2),
    Sketcher.Constraint("Vertical", 2, 2, 5, 2),
    Sketcher.Constraint("Equal", 2, 4),
    Sketcher.Constraint("DistanceX", 1, 1, 1, 2, 50.0),
    Sketcher.Constraint("DistanceY", 0, 1, 0, 2, 4.0),
    Sketcher.Constraint("DistanceY", 0, 2, -1, 1, 146.0),
])
pad9 = doc.addObject("PartDesign::Pad", "Pad008")
body.addObject(pad9)
pad9.Profile = sketch15
pad9.Length = 35
pad9.Reversed = True

sketch16 = doc.addObject("Sketcher::SketchObject", "Sketch015")
body.addObject(sketch16)
sketch16.AttachmentSupport = (doc.XY_Plane, [""])
sketch16.MapMode = "FlatFace"
sketch16.addGeometry([
    Part.LineSegment(V(0, 39, 0), V(50, 21.5, 0)),
    Part.LineSegment(V(50, 21.5, 0), V(50, 39, 0)),
    Part.LineSegment(V(50, 39, 0), V(0, 39, 0)),
], False)
sketch16.addConstraint([
    Sketcher.Constraint("Coincident", 0, 2, 1, 1),
    Sketcher.Constraint("Coincident", 1, 2, 2, 1),
    Sketcher.Constraint("Coincident", 2, 2, 0, 1),
    Sketcher.Constraint("Vertical", 1),
    Sketcher.Constraint("Horizontal", 2),
    Sketcher.Constraint("PointOnObject", 2, 2, -2),
    Sketcher.Constraint("DistanceX", 2, 2, 2, 1, 50.0),
    Sketcher.Constraint("DistanceY", 1, 1, 1, 2, 17.5),
    Sketcher.Constraint("DistanceY", -1, 1, 1, 2, 39.0),
])
pocket7 = doc.addObject("PartDesign::Pocket", "Pocket006")
body.addObject(pocket7)
pocket7.Profile = sketch16
pocket7.Length = 210

sketch17 = doc.addObject("Sketcher::SketchObject", "Sketch016")
body.addObject(sketch17)
sketch17.AttachmentSupport = (doc.XZ_Plane, [""])
sketch17.MapMode = "FlatFace"
sketch17.AttachmentOffset = App.Placement(V(0, 0, -4), App.Rotation())
sketch17.addGeometry([
    Part.Circle(V(2, -131.5, 0), V(0, 0, 1), 3),
    Part.Circle(V(2, -18.5, 0), V(0, 0, 1), 3),
    Part.LineSegment(V(19, -23.5, 0), V(19, -13.5, 0)),
    Part.LineSegment(V(19, -13.5, 0), V(25, -13.5, 0)),
    Part.LineSegment(V(25, -13.5, 0), V(25, -23.5, 0)),
    Part.LineSegment(V(25, -23.5, 0), V(19, -23.5, 0)),
    Part.LineSegment(V(19, -136.5, 0), V(19, -126.5, 0)),
    Part.LineSegment(V(19, -126.5, 0), V(25, -126.5, 0)),
    Part.LineSegment(V(25, -126.5, 0), V(25, -136.5, 0)),
    Part.LineSegment(V(25, -136.5, 0), V(19, -136.5, 0)),
], False)
sketch17.addConstraint([
    Sketcher.Constraint("Coincident", 2, 2, 3, 1),
    Sketcher.Constraint("Coincident", 3, 2, 4, 1),
    Sketcher.Constraint("Coincident", 4, 2, 5, 1),
    Sketcher.Constraint("Coincident", 5, 2, 2, 1),
    Sketcher.Constraint("Coincident", 6, 2, 7, 1),
    Sketcher.Constraint("Coincident", 7, 2, 8, 1),
    Sketcher.Constraint("Coincident", 8, 2, 9, 1),
    Sketcher.Constraint("Coincident", 9, 2, 6, 1),
    Sketcher.Constraint("Vertical", 2),
    Sketcher.Constraint("Horizontal", 3),
    Sketcher.Constraint("Vertical", 4),
    Sketcher.Constraint("Horizontal", 5),
    Sketcher.Constraint("Vertical", 6),
    Sketcher.Constraint("Horizontal", 7),
    Sketcher.Constraint("Vertical", 8),
    Sketcher.Constraint("Horizontal", 9),
    Sketcher.Constraint("Equal", 0, 1),
    Sketcher.Constraint("Vertical", 0, 3, 1, 3),
    Sketcher.Constraint("Vertical", 5, 2, 6, 2),
    Sketcher.Constraint("Vertical", 4, 2, 7, 2),
    Sketcher.Constraint("Equal", 4, 6),
    Sketcher.Constraint("Diameter", 0, 6.0),
    Sketcher.Constraint("DistanceX", 3, 1, 3, 2, 6.0),
    Sketcher.Constraint("DistanceY", 2, 1, 2, 2, 10.0),
    Sketcher.Constraint("DistanceX", -1, 1, 0, 3, 2.0),
    Sketcher.Constraint("DistanceX", -1, 1, 2, 2, 19.0),
    Sketcher.Constraint("DistanceY", 0, 3, 1, 3, 113.0),
    Sketcher.Constraint("DistanceY", 1, 3, 2, 2, 5.0),
    Sketcher.Constraint("DistanceY", 0, 3, 6, 2, 5.0),
    Sketcher.Constraint("DistanceY", 0, 3, -1, 1, 131.5),
])
pocket8 = doc.addObject("PartDesign::Pocket", "Pocket007")
body.addObject(pocket8)
pocket8.Profile = sketch17
pocket8.Length = 30
pocket8.Reversed = True

sketch18 = doc.addObject("Sketcher::SketchObject", "Sketch017")
body.addObject(sketch18)
sketch18.AttachmentSupport = (doc.XZ_Plane, [""])
sketch18.MapMode = "FlatFace"
sketch18.AttachmentOffset = App.Placement(V(0, 0, -4), App.Rotation())
sketch18.addGeometry([
    Part.LineSegment(V(-121, -125, 0), V(-121, -25, 0)),
    Part.LineSegment(V(-121, -25, 0), V(-118, -25, 0)),
    Part.LineSegment(V(-118, -25, 0), V(-118, -125, 0)),
    Part.LineSegment(V(-118, -125, 0), V(-121, -125, 0)),
], False)
sketch18.addConstraint([
    Sketcher.Constraint("Coincident", 0, 2, 1, 1),
    Sketcher.Constraint("Coincident", 1, 2, 2, 1),
    Sketcher.Constraint("Coincident", 2, 2, 3, 1),
    Sketcher.Constraint("Coincident", 3, 2, 0, 1),
    Sketcher.Constraint("Vertical", 0),
    Sketcher.Constraint("Horizontal", 1),
    Sketcher.Constraint("Vertical", 2),
    Sketcher.Constraint("Horizontal", 3),
    Sketcher.Constraint("DistanceX", 1, 1, 1, 2, 3.0),
    Sketcher.Constraint("DistanceY", 0, 1, 0, 2, 100.0),
    Sketcher.Constraint("DistanceX", 0, 2, -1, 1, 121.0),
    Sketcher.Constraint("DistanceY", 0, 2, -1, 1, 25.0),
])
pad10 = doc.addObject("PartDesign::Pad", "Pad009")
body.addObject(pad10)
pad10.Profile = sketch18
pad10.Length = 50
pad10.Reversed = True

sketch19 = doc.addObject("Sketcher::SketchObject", "Sketch018")
body.addObject(sketch19)
sketch19.AttachmentSupport = (doc.XY_Plane, [""])
sketch19.MapMode = "FlatFace"
sketch19.AttachmentOffset = App.Placement(V(0, 0, -150), App.Rotation())
sketch19.addGeometry([
    Part.LineSegment(V(43, 19, 0), V(43, 9, 0)),
    Part.ArcOfCircle(Part.Circle(V(40, 9, 0), V(0, 0, 1), 3), math.radians(180), math.radians(360)),
    Part.LineSegment(V(37, 9, 0), V(37, 19, 0)),
    Part.ArcOfCircle(Part.Circle(V(40, 19, 0), V(0, 0, 1), 3), math.radians(0), math.radians(180)),
], False)
sketch19.addConstraint([
    Sketcher.Constraint("Tangent", 0, 2, 1, 2),
    Sketcher.Constraint("Tangent", 1, 1, 2, 1),
    Sketcher.Constraint("Tangent", 2, 2, 3, 2),
    Sketcher.Constraint("Tangent", 3, 1, 0, 1),
    Sketcher.Constraint("Vertical", 0),
    Sketcher.Constraint("Vertical", 2),
    Sketcher.Constraint("Radius", 1, 3.0),
    Sketcher.Constraint("DistanceY", 0, 2, 0, 1, 10.0),
    Sketcher.Constraint("DistanceX", -1, 1, 1, 3, 40.0),
    Sketcher.Constraint("DistanceY", -1, 1, 1, 3, 9.0),
])
pocket9 = doc.addObject("PartDesign::Pocket", "Pocket008")
body.addObject(pocket9)
pocket9.Profile = sketch19
pocket9.Length = 150
pocket9.Reversed = True

doc.recompute()
